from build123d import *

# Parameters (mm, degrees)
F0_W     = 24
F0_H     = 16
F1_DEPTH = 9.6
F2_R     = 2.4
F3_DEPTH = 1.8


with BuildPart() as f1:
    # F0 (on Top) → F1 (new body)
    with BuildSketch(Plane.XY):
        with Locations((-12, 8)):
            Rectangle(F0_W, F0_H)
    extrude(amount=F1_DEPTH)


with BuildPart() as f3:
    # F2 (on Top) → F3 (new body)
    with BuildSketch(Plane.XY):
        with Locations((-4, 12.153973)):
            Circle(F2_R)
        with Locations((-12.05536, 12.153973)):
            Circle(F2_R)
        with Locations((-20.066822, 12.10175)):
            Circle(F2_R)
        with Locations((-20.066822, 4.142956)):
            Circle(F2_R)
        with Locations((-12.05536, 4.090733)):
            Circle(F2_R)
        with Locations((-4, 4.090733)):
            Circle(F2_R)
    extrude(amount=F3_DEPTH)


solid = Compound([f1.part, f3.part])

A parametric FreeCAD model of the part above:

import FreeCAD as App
import Part
import Sketcher

V = App.Vector
Q = App.Units.Quantity

doc = App.newDocument("Part")
body = doc.addObject("PartDesign::Body", "Body")

# Sketch on XY plane
sketch1 = doc.addObject("Sketcher::SketchObject", "Sketch")
body.addObject(sketch1)
sketch1.AttachmentSupport = (doc.XY_Plane, [""])
sketch1.MapMode = "FlatFace"
sketch1.addGeometry([
    Part.LineSegment(V(-24, 16, 0), V(-24, 0, 0)),
    Part.LineSegment(V(-24, 0, 0), V(0, 0, 0)),
    Part.LineSegment(V(0, 0, 0), V(0, 16, 0)),
    Part.LineSegment(V(0, 16, 0), V(-24, 16, 0)),
], False)
sketch1.addConstraint([
    Sketcher.Constraint("Coincident", 0, 2, 1, 1),
    Sketcher.Constraint("Coincident", 1, 2, 2, 1),
    Sketcher.Constraint("Coincident", 2, 2, 3, 1),
    Sketcher.Constraint("Coincident", 3, 2, 0, 1),
    Sketcher.Constraint("Vertical", 0),
    Sketcher.Constraint("Horizontal", 1),
    Sketcher.Constraint("Vertical", 2),
    Sketcher.Constraint("Horizontal", 3),
    Sketcher.Constraint("Coincident", 1, 2, -1, 1),
    Sketcher.Constraint("DistanceX", 1, 1, 1, 2, Q("24 mm")),
    Sketcher.Constraint("DistanceY", 0, 2, 0, 1, Q("16 mm")),
])
pad1 = doc.addObject("PartDesign::Pad", "Pad")
body.addObject(pad1)
pad1.Profile = sketch1
pad1.Length = 9.6
body2 = doc.addObject("PartDesign::Body", "Body001")
body2.AllowCompound = True

# Sketch on XY plane
sketch2 = doc.addObject("Sketcher::SketchObject", "Sketch001")
body2.addObject(sketch2)
sketch2.AttachmentSupport = (doc.getObject("XY_Plane001"), [""])
sketch2.MapMode = "FlatFace"
sketch2.addGeometry([
    Part.Circle(V(-4, 12.2, 0), V(0, 0, 1), 2.4),  # 0
    Part.Circle(V(-12.1, 12.2, 0), V(0, 0, 1), 2.4),  # 1
    Part.Circle(V(-20.1, 12.1, 0), V(0, 0, 1), 2.4),  # 2
    Part.Circle(V(-20.1, 4.1, 0), V(0, 0, 1), 2.4),  # 3
    Part.Circle(V(-12.1, 4.1, 0), V(0, 0, 1), 2.4),  # 4
    Part.Circle(V(-4, 4.1, 0), V(0, 0, 1), 2.4),  # 5
], False)
sketch2.addConstraint([
    Sketcher.Constraint("Equal", 0, 1),
    Sketcher.Constraint("Equal", 1, 2),
    Sketcher.Constraint("Equal", 2, 3),
    Sketcher.Constraint("Equal", 3, 4),
    Sketcher.Constraint("Equal", 4, 5),
    Sketcher.Constraint("Horizontal", 0, 3, 1, 3),
    Sketcher.Constraint("Horizontal", 4, 3, 5, 3),
    Sketcher.Constraint("Vertical", 2, 3, 3, 3),
    Sketcher.Constraint("Vertical", 1, 3, 4, 3),
    Sketcher.Constraint("Vertical", 0, 3, 5, 3),
    Sketcher.Constraint("Diameter", 0, Q("4.8 mm")),
    Sketcher.Constraint("DistanceX", 0, 3, -1, 1, Q("4 mm")),
    Sketcher.Constraint("DistanceX", 1, 3, -1, 1, Q("12.05536 mm")),
    Sketcher.Constraint("DistanceX", 2, 3, -1, 1, Q("20.066822 mm")),
    Sketcher.Constraint("DistanceY", -1, 1, 2, 3, Q("12.10175 mm")),
    Sketcher.Constraint("DistanceY", 4, 3, 1, 3, Q("8.06324 mm")),
    Sketcher.Constraint("DistanceY", -1, 1, 0, 3, Q("12.153973 mm")),
    Sketcher.Constraint("DistanceY", -1, 1, 3, 3, Q("4.142956 mm")),
])
pad2 = doc.addObject("PartDesign::Pad", "Pad001")
body2.addObject(pad2)
pad2.Profile = sketch2
pad2.Length = 1.8

doc.recompute()
